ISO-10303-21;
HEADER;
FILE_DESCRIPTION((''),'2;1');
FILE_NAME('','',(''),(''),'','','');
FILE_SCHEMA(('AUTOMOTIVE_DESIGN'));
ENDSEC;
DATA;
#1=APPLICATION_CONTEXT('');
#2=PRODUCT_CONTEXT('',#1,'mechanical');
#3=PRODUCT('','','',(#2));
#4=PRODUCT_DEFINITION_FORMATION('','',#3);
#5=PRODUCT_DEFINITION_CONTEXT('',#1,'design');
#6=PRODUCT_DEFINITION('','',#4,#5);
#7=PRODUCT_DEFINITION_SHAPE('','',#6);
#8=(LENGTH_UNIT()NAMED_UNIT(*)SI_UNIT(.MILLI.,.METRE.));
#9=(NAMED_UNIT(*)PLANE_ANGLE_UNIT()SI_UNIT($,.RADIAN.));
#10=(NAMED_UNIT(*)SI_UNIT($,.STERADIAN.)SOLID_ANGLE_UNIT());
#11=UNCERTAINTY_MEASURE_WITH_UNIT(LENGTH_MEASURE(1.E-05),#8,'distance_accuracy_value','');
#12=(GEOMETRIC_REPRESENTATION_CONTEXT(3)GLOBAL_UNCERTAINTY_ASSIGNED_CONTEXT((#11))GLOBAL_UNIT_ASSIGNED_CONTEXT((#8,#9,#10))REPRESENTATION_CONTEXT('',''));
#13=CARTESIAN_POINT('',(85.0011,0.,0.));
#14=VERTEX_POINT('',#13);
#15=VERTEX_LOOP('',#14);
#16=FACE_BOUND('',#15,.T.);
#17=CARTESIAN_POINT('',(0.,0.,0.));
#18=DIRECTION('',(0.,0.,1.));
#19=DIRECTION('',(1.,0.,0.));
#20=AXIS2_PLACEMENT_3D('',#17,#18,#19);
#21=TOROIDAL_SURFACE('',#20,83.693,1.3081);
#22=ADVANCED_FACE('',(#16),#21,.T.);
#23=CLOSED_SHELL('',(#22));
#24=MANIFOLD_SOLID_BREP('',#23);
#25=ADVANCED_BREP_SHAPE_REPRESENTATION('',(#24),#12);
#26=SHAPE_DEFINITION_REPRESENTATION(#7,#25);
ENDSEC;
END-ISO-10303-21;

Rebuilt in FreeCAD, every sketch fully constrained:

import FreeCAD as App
import Part
import Sketcher
Q = App.Units.Quantity

doc = App.newDocument("Part")
params = doc.addObject("Spreadsheet::Sheet", "Params")
for row, (alias, value) in enumerate([
    ("sketch1_diameter", "0.103 in"),
    ("revolution_angle", "360 deg"),
], start=1):
    params.set(f"A{row}", alias)
    params.set(f"B{row}", "=" + value)
    params.setAlias(f"B{row}", alias)

body = doc.addObject("PartDesign::Body", "Body")

# Sketch on YZ plane
sketch1 = body.newObject("Sketcher::SketchObject", "Sketch")
sketch1.AttachmentSupport = (doc.getObject("YZ_Plane"), [""])
sketch1.MapMode = "FlatFace"
sketch1.addGeometry(Part.Circle(App.Vector(-83.7, 0, 0), App.Vector(0, 0, 1), 1.3), False)
sketch1.addConstraint([
    Sketcher.Constraint("PointOnObject", 0, 3, -1),
    Sketcher.Constraint("Diameter", 0, Q("0.103 in")),
    Sketcher.Constraint("DistanceX", 0, 3, -1, 1, Q("3.295 in")),
])
sketch1.setExpression("Constraints[1]", "Params.sketch1_diameter")
revolution = body.newObject("PartDesign::Revolution", "Revolution")
revolution.Profile = sketch1
revolution.ReferenceAxis = (sketch1, ["V_Axis"])
revolution.setExpression("Angle", "Params.revolution_angle")

doc.recompute()
